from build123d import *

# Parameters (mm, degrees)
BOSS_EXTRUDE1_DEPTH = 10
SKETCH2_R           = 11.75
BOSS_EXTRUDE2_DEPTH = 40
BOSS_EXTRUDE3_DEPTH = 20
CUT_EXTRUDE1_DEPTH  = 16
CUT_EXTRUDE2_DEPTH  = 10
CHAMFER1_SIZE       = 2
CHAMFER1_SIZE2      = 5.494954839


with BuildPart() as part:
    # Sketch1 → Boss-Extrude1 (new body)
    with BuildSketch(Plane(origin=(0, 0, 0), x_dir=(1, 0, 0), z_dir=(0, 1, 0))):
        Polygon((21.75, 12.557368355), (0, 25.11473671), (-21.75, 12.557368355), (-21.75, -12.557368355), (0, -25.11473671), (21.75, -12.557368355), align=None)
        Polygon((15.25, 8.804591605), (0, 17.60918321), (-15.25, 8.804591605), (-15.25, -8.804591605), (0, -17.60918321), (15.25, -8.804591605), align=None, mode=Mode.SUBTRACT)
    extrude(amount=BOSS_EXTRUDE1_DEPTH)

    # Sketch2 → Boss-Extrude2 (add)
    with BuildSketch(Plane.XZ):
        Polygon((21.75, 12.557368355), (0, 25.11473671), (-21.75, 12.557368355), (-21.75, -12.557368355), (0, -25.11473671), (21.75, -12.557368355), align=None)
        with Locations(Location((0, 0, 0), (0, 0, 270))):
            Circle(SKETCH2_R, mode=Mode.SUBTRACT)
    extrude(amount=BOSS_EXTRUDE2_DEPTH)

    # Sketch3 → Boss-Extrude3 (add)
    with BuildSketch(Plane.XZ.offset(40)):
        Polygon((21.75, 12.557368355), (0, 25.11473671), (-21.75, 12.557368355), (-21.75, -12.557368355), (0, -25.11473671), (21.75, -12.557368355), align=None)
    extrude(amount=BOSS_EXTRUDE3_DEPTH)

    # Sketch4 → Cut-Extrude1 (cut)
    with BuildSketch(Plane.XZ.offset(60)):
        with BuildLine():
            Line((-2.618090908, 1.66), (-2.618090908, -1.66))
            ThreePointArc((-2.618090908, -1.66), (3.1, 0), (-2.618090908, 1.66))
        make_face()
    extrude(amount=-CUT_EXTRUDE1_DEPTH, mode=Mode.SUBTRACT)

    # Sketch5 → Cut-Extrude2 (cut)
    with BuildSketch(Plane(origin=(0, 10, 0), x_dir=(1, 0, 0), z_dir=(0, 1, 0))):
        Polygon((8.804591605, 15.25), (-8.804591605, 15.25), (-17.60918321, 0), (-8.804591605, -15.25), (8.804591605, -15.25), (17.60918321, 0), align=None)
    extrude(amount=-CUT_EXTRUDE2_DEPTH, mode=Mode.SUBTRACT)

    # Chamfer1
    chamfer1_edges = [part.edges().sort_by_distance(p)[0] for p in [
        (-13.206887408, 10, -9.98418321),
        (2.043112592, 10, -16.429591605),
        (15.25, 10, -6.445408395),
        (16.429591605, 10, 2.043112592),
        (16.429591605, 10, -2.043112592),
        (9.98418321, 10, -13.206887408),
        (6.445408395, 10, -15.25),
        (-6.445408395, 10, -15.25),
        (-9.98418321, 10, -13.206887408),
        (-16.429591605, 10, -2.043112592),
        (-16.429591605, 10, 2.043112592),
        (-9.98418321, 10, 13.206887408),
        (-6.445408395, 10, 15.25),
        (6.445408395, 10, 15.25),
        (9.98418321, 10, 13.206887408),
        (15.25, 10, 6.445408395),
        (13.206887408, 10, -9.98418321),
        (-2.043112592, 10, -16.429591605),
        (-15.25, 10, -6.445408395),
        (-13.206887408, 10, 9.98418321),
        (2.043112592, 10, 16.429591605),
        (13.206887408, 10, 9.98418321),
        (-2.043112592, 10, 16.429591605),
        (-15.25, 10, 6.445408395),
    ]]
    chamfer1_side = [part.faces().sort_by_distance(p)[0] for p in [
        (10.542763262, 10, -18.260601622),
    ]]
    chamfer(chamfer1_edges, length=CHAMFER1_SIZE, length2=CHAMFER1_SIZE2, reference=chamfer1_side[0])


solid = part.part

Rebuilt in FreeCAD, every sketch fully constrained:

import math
import FreeCAD as App
import Part
import Sketcher
from FreeCAD import Vector
Q = App.Units.Quantity


def edges_at(feature, points):
    """Names of the edges that pass closest to the given points."""
    edges = feature.Shape.Edges
    near = lambda p: min(range(len(edges)), key=lambda i: edges[i].distToShape(Part.Vertex(*p))[0])
    return sorted({f"Edge{near(p) + 1}" for p in points})


def add_polygon(sketch, points):
    """Adds a closed chain of lines whose ends are joined by coincident constraints."""
    first, n = sketch.GeometryCount, len(points)
    for a, b in zip(points, points[1:] + points[:1]):
        sketch.addGeometry(Part.LineSegment(App.Vector(*a, 0), App.Vector(*b, 0)), False)
    for i in range(n):
        sketch.addConstraint(Sketcher.Constraint("Coincident", first + i, 2, first + (i + 1) % n, 1))

doc = App.newDocument("Part")
body = doc.addObject("PartDesign::Body", "Body")

sketch1 = body.newObject("Sketcher::SketchObject", "Sketch")
sketch1.AttachmentSupport = (doc.getObject("XZ_Plane"), [""])
sketch1.MapMode = "FlatFace"
add_polygon(sketch1, [(22, -13), (0, -25), (-22, -13), (-22, 13), (0, 25), (22, 13)])
add_polygon(sketch1, [(0, -18), (15, -9), (15, 9), (0, 18), (-15, 9), (-15, -9)])
sketch1.addConstraint([
    Sketcher.Constraint("Vertical", 2),
    Sketcher.Constraint("Vertical", 5),
    Sketcher.Constraint("Vertical", 7),
    Sketcher.Constraint("Vertical", 10),
    Sketcher.Constraint("Symmetric", 0, 2, 3, 2, -1, 1),
    Sketcher.Constraint("Symmetric", 1, 2, 4, 2, -1, 1),
    Sketcher.Constraint("Symmetric", 6, 2, 9, 2, -1, 1),
    Sketcher.Constraint("Symmetric", 8, 2, 11, 2, -1, 1),
    Sketcher.Constraint("PointOnObject", 0, 2, -2),
    Sketcher.Constraint("PointOnObject", 8, 2, -2),
    Sketcher.Constraint("Parallel", 0, 3),
    Sketcher.Constraint("Parallel", 3, 6),
    Sketcher.Constraint("Parallel", 4, 8),
    Sketcher.Constraint("Parallel", 8, 11),
    Sketcher.Constraint("Horizontal", 2, 2, 4, 2),
    Sketcher.Constraint("Angle", 0, Q("-150 deg")),
    Sketcher.Constraint("DistanceX", 1, 2, 6, 2, Q("37 mm")),
    Sketcher.Constraint("DistanceX", 2, 2, 4, 2, Q("43.5 mm")),
    Sketcher.Constraint("DistanceY", 2, 1, 2, 2, Q("25.114737 mm")),
    Sketcher.Constraint("DistanceY", 7, 1, 7, 2, Q("17.609183 mm")),
])
pad1 = body.newObject("PartDesign::Pad", "Pad")
pad1.Profile = sketch1
pad1.Length = 10
pad1.Reversed = True

sketch2 = body.newObject("Sketcher::SketchObject", "Sketch001")
sketch2.AttachmentSupport = (doc.getObject("XZ_Plane"), [""])
sketch2.MapMode = "FlatFace"
add_polygon(sketch2, [(22, 13), (0, 25), (-22, 13), (-22, -13), (0, -25), (22, -13)])
sketch2.addGeometry(Part.Circle(Vector(0, 0, 0), Vector(0, 0, 1), 12), False)
sketch2.addConstraint([
    Sketcher.Constraint("Vertical", 2),
    Sketcher.Constraint("Vertical", 5),
    Sketcher.Constraint("Coincident", 6, 3, -1, 1),
    Sketcher.Constraint("Symmetric", 0, 2, 3, 2, -1, 1),
    Sketcher.Constraint("Symmetric", 1, 2, 4, 2, -1, 1),
    Sketcher.Constraint("PointOnObject", 0, 2, -2),
    Sketcher.Constraint("Parallel", 0, 3),
    Sketcher.Constraint("Horizontal", 2, 2, 4, 2),
    Sketcher.Constraint("Diameter", 6, Q("23.5 mm")),
    Sketcher.Constraint("Angle", 0, Q("150 deg")),
    Sketcher.Constraint("DistanceX", 2, 2, 4, 2, Q("43.5 mm")),
    Sketcher.Constraint("DistanceY", 2, 2, 2, 1, Q("25.114737 mm")),
])
pad2 = body.newObject("PartDesign::Pad", "Pad001")
pad2.Profile = sketch2
pad2.Length = 40

sketch3 = body.newObject("Sketcher::SketchObject", "Sketch002")
sketch3.AttachmentSupport = (doc.getObject("XZ_Plane"), [""])
sketch3.MapMode = "FlatFace"
sketch3.AttachmentOffset = App.Placement(Vector(0, 0, 40), App.Rotation())
add_polygon(sketch3, [(22, 13), (0, 25), (-22, 13), (-22, -13), (0, -25), (22, -13)])
sketch3.addConstraint([
    Sketcher.Constraint("Vertical", 2),
    Sketcher.Constraint("Vertical", 5),
    Sketcher.Constraint("Symmetric", 0, 2, 3, 2, -1, 1),
    Sketcher.Constraint("Symmetric", 1, 2, 4, 2, -1, 1),
    Sketcher.Constraint("PointOnObject", 0, 2, -2),
    Sketcher.Constraint("Parallel", 0, 3),
    Sketcher.Constraint("Horizontal", 2, 2, 4, 2),
    Sketcher.Constraint("Angle", 0, Q("150 deg")),
    Sketcher.Constraint("DistanceX", 2, 2, 4, 2, Q("43.5 mm")),
    Sketcher.Constraint("DistanceY", 2, 2, 2, 1, Q("25.114737 mm")),
])
pad3 = body.newObject("PartDesign::Pad", "Pad002")
pad3.Profile = sketch3
pad3.Length = 20

sketch4 = body.newObject("Sketcher::SketchObject", "Sketch003")
sketch4.AttachmentSupport = (doc.getObject("XZ_Plane"), [""])
sketch4.MapMode = "FlatFace"
sketch4.AttachmentOffset = App.Placement(Vector(0, 0, 60), App.Rotation())
sketch4.addGeometry([
    Part.LineSegment(Vector(-2.6, 1.7, 0), Vector(-2.6, -1.7, 0)),
    Part.ArcOfCircle(Part.Circle(Vector(0, 0, 0), Vector(0, 0, 1), 3.1), math.radians(-148), math.radians(148)),
], False)
sketch4.addConstraint([
    Sketcher.Constraint("Coincident", 0, 1, 1, 2),
    Sketcher.Constraint("Coincident", 1, 1, 0, 2),
    Sketcher.Constraint("Vertical", 0),
    Sketcher.Constraint("Coincident", 1, 3, -1, 1),
    Sketcher.Constraint("Radius", 1, Q("3.1 mm")),
    Sketcher.Constraint("DistanceY", 0, 2, 0, 1, Q("3.32 mm")),
])
pocket1 = body.newObject("PartDesign::Pocket", "Pocket")
pocket1.Profile = sketch4
pocket1.Length = 16

sketch5 = body.newObject("Sketcher::SketchObject", "Sketch004")
sketch5.AttachmentSupport = (doc.getObject("XZ_Plane"), [""])
sketch5.MapMode = "FlatFace"
sketch5.AttachmentOffset = App.Placement(Vector(0, 0, -10), App.Rotation())
add_polygon(sketch5, [(9, -15), (-9, -15), (-18, 0), (-9, 15), (9, 15), (18, 0)])
sketch5.addConstraint([
    Sketcher.Constraint("Horizontal", 0),
    Sketcher.Constraint("Horizontal", 3),
    Sketcher.Constraint("Symmetric", 0, 2, 3, 2, -1, 1),
    Sketcher.Constraint("Symmetric", 1, 2, 4, 2, -1, 1),
    Sketcher.Constraint("PointOnObject", 1, 2, -1),
    Sketcher.Constraint("Parallel", 2, 5),
    Sketcher.Constraint("Vertical", 0, 2, 2, 2),
    Sketcher.Constraint("Angle", 1, Q("120 deg")),
    Sketcher.Constraint("DistanceY", 0, 2, 2, 2, Q("30.5 mm")),
    Sketcher.Constraint("DistanceX", 0, 2, 0, 1, Q("17.609183 mm")),
])
pocket2 = body.newObject("PartDesign::Pocket", "Pocket001")
pocket2.Profile = sketch5
pocket2.Length = 10
pocket2.Reversed = True
doc.recompute()

chamfer = body.newObject("PartDesign::Chamfer", "Chamfer")
chamfer.Base = (pocket2, edges_at(pocket2, [
    (-13.207, 10, -9.984),
    (2.043, 10, -16.43),
    (15.25, 10, -6.445),
    (16.43, 10, 2.043),
    (16.43, 10, -2.043),
    (9.984, 10, -13.207),
    (6.445, 10, -15.25),
    (-6.445, 10, -15.25),
    (-9.984, 10, -13.207),
    (-16.43, 10, -2.043),
    (-16.43, 10, 2.043),
    (-9.984, 10, 13.207),
    (-6.445, 10, 15.25),
    (6.445, 10, 15.25),
    (9.984, 10, 13.207),
    (15.25, 10, 6.445),
    (13.207, 10, -9.984),
    (-2.043, 10, -16.43),
    (-15.25, 10, -6.445),
    (-13.207, 10, 9.984),
    (2.043, 10, 16.43),
    (13.207, 10, 9.984),
    (-2.043, 10, 16.43),
    (-15.25, 10, 6.445),
]))
chamfer.ChamferType = "Two distances"
chamfer.Size = 2
chamfer.Size2 = 5.494955

doc.recompute()
